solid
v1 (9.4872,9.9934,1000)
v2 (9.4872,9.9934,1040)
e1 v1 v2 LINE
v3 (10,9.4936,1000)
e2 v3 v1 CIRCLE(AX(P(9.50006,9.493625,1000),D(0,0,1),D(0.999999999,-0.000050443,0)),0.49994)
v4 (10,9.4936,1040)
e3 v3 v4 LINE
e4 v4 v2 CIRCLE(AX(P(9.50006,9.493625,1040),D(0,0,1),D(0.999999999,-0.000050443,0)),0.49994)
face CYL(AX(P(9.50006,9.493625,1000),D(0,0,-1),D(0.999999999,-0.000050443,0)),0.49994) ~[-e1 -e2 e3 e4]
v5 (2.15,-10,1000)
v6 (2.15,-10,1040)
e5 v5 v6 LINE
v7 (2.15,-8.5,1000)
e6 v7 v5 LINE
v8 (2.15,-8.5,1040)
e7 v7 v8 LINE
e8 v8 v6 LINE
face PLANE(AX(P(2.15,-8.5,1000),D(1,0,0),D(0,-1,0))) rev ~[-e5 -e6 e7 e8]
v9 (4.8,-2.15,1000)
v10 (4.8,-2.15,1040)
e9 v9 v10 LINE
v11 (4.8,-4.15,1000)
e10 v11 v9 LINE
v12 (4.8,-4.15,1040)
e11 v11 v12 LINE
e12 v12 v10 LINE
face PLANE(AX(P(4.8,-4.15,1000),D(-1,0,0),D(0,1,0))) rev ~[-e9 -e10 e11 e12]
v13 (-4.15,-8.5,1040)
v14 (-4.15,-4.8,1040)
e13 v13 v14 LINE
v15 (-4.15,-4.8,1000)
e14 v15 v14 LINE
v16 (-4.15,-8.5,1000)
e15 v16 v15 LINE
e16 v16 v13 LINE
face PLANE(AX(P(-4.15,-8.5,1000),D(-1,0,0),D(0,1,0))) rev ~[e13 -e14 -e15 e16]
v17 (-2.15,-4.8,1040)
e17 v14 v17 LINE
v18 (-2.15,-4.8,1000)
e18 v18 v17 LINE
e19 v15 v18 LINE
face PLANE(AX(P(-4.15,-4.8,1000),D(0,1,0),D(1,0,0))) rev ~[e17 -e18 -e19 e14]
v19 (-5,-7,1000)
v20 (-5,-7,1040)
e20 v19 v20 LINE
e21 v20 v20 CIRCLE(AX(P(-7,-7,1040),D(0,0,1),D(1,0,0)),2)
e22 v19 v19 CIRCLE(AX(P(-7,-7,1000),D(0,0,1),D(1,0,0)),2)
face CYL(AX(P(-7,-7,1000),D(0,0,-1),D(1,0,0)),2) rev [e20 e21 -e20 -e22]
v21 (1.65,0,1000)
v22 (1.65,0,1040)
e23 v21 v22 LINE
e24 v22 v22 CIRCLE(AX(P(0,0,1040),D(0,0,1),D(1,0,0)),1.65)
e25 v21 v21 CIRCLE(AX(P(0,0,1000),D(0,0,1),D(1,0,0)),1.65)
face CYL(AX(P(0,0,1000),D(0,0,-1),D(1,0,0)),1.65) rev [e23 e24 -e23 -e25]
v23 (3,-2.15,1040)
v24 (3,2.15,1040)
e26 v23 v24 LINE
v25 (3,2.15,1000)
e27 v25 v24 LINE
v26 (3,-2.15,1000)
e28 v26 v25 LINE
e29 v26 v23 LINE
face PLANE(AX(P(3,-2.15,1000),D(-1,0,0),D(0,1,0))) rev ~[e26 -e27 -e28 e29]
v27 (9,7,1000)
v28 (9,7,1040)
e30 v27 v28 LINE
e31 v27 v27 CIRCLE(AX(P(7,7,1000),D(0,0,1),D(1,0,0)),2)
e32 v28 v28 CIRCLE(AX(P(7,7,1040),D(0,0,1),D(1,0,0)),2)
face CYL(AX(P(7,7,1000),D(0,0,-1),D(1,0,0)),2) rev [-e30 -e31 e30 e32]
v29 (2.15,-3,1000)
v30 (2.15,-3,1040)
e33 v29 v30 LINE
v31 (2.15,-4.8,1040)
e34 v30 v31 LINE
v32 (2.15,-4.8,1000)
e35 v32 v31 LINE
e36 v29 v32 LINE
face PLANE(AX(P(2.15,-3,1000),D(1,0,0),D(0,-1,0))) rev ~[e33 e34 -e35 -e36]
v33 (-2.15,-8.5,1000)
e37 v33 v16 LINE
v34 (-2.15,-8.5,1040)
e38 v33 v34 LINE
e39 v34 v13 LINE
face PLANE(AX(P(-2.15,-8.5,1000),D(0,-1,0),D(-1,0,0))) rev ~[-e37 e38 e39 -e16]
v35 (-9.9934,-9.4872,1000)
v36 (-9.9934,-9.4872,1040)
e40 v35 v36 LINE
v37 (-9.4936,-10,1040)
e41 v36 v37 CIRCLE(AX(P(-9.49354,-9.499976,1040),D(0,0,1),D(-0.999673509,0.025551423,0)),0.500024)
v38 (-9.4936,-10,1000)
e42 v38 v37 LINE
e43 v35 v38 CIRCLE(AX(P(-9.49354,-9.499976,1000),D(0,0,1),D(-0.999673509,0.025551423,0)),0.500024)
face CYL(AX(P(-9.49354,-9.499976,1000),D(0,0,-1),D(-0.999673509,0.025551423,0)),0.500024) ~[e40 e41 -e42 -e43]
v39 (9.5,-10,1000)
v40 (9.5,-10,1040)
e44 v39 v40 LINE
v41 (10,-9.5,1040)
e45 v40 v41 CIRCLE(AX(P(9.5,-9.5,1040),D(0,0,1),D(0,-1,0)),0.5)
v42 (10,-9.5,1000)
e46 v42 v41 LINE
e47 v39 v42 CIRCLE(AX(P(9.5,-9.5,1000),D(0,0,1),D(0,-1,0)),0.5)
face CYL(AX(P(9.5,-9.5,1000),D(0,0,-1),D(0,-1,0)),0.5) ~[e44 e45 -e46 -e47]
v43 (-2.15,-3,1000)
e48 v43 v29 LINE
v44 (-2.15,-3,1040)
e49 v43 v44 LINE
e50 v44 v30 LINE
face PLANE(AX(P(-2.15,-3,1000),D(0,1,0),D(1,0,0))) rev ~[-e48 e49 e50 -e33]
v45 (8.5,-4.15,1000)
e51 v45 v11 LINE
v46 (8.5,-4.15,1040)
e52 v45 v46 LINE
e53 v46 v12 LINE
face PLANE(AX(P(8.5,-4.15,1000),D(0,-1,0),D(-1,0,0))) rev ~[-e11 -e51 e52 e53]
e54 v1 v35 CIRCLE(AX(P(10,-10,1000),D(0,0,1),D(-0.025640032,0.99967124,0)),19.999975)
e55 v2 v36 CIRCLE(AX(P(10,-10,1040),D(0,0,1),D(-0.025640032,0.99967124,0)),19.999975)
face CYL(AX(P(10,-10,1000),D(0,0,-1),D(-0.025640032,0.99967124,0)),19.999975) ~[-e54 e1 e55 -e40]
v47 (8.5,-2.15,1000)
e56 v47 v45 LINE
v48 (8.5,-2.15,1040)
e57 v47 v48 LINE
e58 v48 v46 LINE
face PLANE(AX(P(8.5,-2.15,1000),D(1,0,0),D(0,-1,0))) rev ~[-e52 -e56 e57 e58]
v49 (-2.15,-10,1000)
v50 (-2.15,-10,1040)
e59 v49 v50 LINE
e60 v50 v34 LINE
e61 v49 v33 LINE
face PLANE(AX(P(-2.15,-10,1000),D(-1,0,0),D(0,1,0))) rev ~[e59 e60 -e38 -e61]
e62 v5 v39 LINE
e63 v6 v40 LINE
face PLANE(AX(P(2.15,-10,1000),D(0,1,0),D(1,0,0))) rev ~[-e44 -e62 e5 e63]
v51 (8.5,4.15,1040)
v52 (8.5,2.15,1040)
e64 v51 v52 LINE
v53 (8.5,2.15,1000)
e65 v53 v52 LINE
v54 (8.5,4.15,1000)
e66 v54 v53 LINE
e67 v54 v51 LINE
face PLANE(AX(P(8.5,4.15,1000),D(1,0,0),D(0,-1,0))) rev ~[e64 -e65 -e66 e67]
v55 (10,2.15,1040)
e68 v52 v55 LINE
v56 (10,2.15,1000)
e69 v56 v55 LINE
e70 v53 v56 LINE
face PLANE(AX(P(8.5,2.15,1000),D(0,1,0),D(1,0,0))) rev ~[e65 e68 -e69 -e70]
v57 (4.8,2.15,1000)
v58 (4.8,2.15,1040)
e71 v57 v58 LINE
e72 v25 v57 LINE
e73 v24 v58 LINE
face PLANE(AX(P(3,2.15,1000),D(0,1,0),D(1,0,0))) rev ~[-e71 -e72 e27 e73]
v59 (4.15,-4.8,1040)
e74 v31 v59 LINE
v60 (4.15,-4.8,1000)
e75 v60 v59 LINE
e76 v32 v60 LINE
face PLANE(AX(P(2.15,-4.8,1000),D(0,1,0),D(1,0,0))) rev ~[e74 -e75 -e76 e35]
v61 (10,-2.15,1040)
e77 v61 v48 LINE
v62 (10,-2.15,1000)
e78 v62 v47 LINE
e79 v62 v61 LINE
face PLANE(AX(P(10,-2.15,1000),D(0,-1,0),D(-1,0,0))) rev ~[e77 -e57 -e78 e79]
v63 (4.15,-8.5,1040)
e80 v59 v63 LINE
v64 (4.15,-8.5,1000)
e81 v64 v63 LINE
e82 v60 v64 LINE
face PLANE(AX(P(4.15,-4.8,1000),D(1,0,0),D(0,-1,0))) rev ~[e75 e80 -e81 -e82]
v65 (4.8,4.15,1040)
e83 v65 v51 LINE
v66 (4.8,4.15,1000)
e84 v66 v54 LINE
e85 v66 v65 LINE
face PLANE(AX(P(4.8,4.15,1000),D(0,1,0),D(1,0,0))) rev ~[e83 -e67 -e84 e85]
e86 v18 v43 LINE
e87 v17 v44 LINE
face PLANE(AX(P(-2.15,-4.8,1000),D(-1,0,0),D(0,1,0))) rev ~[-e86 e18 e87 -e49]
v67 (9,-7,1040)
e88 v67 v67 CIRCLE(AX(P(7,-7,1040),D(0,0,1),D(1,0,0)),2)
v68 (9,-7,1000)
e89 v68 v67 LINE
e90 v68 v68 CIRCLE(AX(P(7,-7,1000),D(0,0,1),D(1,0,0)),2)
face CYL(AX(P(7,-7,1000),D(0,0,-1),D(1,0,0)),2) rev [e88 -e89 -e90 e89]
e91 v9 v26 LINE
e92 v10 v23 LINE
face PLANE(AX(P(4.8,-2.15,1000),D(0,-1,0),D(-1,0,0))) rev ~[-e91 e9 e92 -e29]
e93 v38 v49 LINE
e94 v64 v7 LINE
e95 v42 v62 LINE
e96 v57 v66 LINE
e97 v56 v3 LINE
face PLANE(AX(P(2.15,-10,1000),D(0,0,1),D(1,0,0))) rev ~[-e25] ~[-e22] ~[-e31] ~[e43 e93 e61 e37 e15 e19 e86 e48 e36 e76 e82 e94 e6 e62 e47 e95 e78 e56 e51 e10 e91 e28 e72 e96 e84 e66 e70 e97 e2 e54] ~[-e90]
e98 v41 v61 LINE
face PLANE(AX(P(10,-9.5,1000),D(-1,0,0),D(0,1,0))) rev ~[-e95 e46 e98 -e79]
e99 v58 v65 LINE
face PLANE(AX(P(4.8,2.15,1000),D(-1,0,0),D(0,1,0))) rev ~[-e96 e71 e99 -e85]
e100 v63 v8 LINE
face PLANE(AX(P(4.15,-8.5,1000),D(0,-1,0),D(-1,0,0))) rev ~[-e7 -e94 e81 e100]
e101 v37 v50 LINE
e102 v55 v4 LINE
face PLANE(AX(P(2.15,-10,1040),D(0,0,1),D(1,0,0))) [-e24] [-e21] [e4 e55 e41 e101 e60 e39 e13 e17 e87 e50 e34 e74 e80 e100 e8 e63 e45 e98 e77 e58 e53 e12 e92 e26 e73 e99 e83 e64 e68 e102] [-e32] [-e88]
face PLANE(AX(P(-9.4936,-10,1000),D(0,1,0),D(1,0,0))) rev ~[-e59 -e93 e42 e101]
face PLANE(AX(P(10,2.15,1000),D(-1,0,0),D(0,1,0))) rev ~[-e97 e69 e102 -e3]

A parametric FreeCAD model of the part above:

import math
import FreeCAD as App
import Part
import Sketcher

V = App.Vector

doc = App.newDocument("Part")
body = doc.addObject("PartDesign::Body", "Body")

# Sketch on XY plane
sketch1 = body.newObject("Sketcher::SketchObject", "Sketch")
sketch1.AttachmentSupport = (doc.getObject("XY_Plane"), [""])
sketch1.MapMode = "FlatFace"
sketch1.AttachmentOffset = App.Placement(V(0, 0, 1000), App.Rotation())
sketch1.addGeometry([
    Part.LineSegment(V(8.5, 4.15, 0), V(8.5, 2.15, 0)),  # 0
    Part.LineSegment(V(8.5, 2.15, 0), V(10, 2.15, 0)),  # 1
    Part.LineSegment(V(10, 2.15, 0), V(10, 9.4936, 0)),  # 2
    Part.ArcOfCircle(Part.Circle(V(9.5, 9.4936, 0), V(0, 0, 1), 0.5), math.radians(0), math.radians(91.467038)),  # 3
    Part.ArcOfCircle(Part.Circle(V(10, -10, 0), V(0, 0, 1), 19.999975), math.radians(91.469227), math.radians(178.530773)),  # 4
    Part.ArcOfCircle(Part.Circle(V(-9.4936, -9.5, 0), V(0, 0, 1), 0.499964), math.radians(178.532962), math.radians(270)),  # 5
    Part.LineSegment(V(-9.4936, -10, 0), V(-2.15, -10, 0)),  # 6
    Part.LineSegment(V(-2.15, -10, 0), V(-2.15, -8.5, 0)),  # 7
    Part.LineSegment(V(-2.15, -8.5, 0), V(-4.15, -8.5, 0)),  # 8
    Part.LineSegment(V(-4.15, -8.5, 0), V(-4.15, -4.8, 0)),  # 9
    Part.LineSegment(V(-4.15, -4.8, 0), V(-2.15, -4.8, 0)),  # 10
    Part.LineSegment(V(-2.15, -4.8, 0), V(-2.15, -3, 0)),  # 11
    Part.LineSegment(V(-2.15, -3, 0), V(2.15, -3, 0)),  # 12
    Part.LineSegment(V(2.15, -3, 0), V(2.15, -4.8, 0)),  # 13
    Part.LineSegment(V(2.15, -4.8, 0), V(4.15, -4.8, 0)),  # 14
    Part.LineSegment(V(4.15, -4.8, 0), V(4.15, -8.5, 0)),  # 15
    Part.LineSegment(V(4.15, -8.5, 0), V(2.15, -8.5, 0)),  # 16
    Part.LineSegment(V(2.15, -8.5, 0), V(2.15, -10, 0)),  # 17
    Part.LineSegment(V(2.15, -10, 0), V(9.5, -10, 0)),  # 18
    Part.ArcOfCircle(Part.Circle(V(9.5, -9.5, 0), V(0, 0, 1), 0.5), math.radians(-90), math.radians(0)),  # 19
    Part.LineSegment(V(10, -9.5, 0), V(10, -2.15, 0)),  # 20
    Part.LineSegment(V(10, -2.15, 0), V(8.5, -2.15, 0)),  # 21
    Part.LineSegment(V(8.5, -2.15, 0), V(8.5, -4.15, 0)),  # 22
    Part.LineSegment(V(8.5, -4.15, 0), V(4.8, -4.15, 0)),  # 23
    Part.LineSegment(V(4.8, -4.15, 0), V(4.8, -2.15, 0)),  # 24
    Part.LineSegment(V(4.8, -2.15, 0), V(3, -2.15, 0)),  # 25
    Part.LineSegment(V(3, -2.15, 0), V(3, 2.15, 0)),  # 26
    Part.LineSegment(V(3, 2.15, 0), V(4.8, 2.15, 0)),  # 27
    Part.LineSegment(V(4.8, 2.15, 0), V(4.8, 4.15, 0)),  # 28
    Part.LineSegment(V(4.8, 4.15, 0), V(8.5, 4.15, 0)),  # 29
    Part.Circle(V(-7, -7, 0), V(0, 0, 1), 2),  # 30
    Part.Circle(V(7, -7, 0), V(0, 0, 1), 2),  # 31
    Part.Circle(V(0, 0, 0), V(0, 0, 1), 1.65),  # 32
    Part.Circle(V(7, 7, 0), V(0, 0, 1), 2),  # 33
], False)
sketch1.addConstraint([
    Sketcher.Constraint("Coincident", 0, 2, 1, 1),
    Sketcher.Constraint("Coincident", 1, 2, 2, 1),
    Sketcher.Constraint("Tangent", 2, 2, 3, 1),
    Sketcher.Constraint("Tangent", 3, 2, 4, 1),
    Sketcher.Constraint("Tangent", 4, 2, 5, 1),
    Sketcher.Constraint("Tangent", 5, 2, 6, 1),
    Sketcher.Constraint("Coincident", 6, 2, 7, 1),
    Sketcher.Constraint("Coincident", 7, 2, 8, 1),
    Sketcher.Constraint("Coincident", 8, 2, 9, 1),
    Sketcher.Constraint("Coincident", 9, 2, 10, 1),
    Sketcher.Constraint("Coincident", 10, 2, 11, 1),
    Sketcher.Constraint("Coincident", 11, 2, 12, 1),
    Sketcher.Constraint("Coincident", 12, 2, 13, 1),
    Sketcher.Constraint("Coincident", 13, 2, 14, 1),
    Sketcher.Constraint("Coincident", 14, 2, 15, 1),
    Sketcher.Constraint("Coincident", 15, 2, 16, 1),
    Sketcher.Constraint("Coincident", 16, 2, 17, 1),
    Sketcher.Constraint("Coincident", 17, 2, 18, 1),
    Sketcher.Constraint("Tangent", 18, 2, 19, 1),
    Sketcher.Constraint("Tangent", 19, 2, 20, 1),
    Sketcher.Constraint("Coincident", 20, 2, 21, 1),
    Sketcher.Constraint("Coincident", 21, 2, 22, 1),
    Sketcher.Constraint("Coincident", 22, 2, 23, 1),
    Sketcher.Constraint("Coincident", 23, 2, 24, 1),
    Sketcher.Constraint("Coincident", 24, 2, 25, 1),
    Sketcher.Constraint("Coincident", 25, 2, 26, 1),
    Sketcher.Constraint("Coincident", 26, 2, 27, 1),
    Sketcher.Constraint("Coincident", 27, 2, 28, 1),
    Sketcher.Constraint("Coincident", 28, 2, 29, 1),
    Sketcher.Constraint("Coincident", 29, 2, 0, 1),
    Sketcher.Constraint("Vertical", 0),
    Sketcher.Constraint("Horizontal", 1),
    Sketcher.Constraint("Vertical", 2),
    Sketcher.Constraint("Horizontal", 6),
    Sketcher.Constraint("Vertical", 7),
    Sketcher.Constraint("Horizontal", 8),
    Sketcher.Constraint("Vertical", 9),
    Sketcher.Constraint("Horizontal", 10),
    Sketcher.Constraint("Vertical", 11),
    Sketcher.Constraint("Horizontal", 12),
    Sketcher.Constraint("Vertical", 13),
    Sketcher.Constraint("Horizontal", 14),
    Sketcher.Constraint("Vertical", 15),
    Sketcher.Constraint("Horizontal", 16),
    Sketcher.Constraint("Vertical", 17),
    Sketcher.Constraint("Horizontal", 18),
    Sketcher.Constraint("Vertical", 20),
    Sketcher.Constraint("Horizontal", 21),
    Sketcher.Constraint("Vertical", 22),
    Sketcher.Constraint("Horizontal", 23),
    Sketcher.Constraint("Vertical", 24),
    Sketcher.Constraint("Horizontal", 25),
    Sketcher.Constraint("Vertical", 26),
    Sketcher.Constraint("Horizontal", 27),
    Sketcher.Constraint("Vertical", 28),
    Sketcher.Constraint("Horizontal", 29),
    Sketcher.Constraint("Coincident", 32, 3, -1, 1),
    Sketcher.Constraint("Equal", 3, 5),
    Sketcher.Constraint("Equal", 5, 19),
    Sketcher.Constraint("Equal", 30, 31),
    Sketcher.Constraint("Equal", 31, 33),
    Sketcher.Constraint("Symmetric", 30, 3, 33, 3, -1, 1),
    Sketcher.Constraint("Symmetric", 30, 3, 31, 3, -2),
    Sketcher.Constraint("Symmetric", 10, 2, 13, 2, -2),
    Sketcher.Constraint("Symmetric", 8, 2, 15, 2, -2),
    Sketcher.Constraint("Symmetric", 6, 2, 17, 2, -2),
    Sketcher.Constraint("Symmetric", 1, 2, 20, 2, -1),
    Sketcher.Constraint("Symmetric", 24, 2, 27, 2, -1),
    Sketcher.Constraint("Symmetric", 22, 2, 29, 2, -1),
    Sketcher.Constraint("Horizontal", 4, 3, 5, 2),
    Sketcher.Constraint("Horizontal", 21, 2, 24, 2),
    Sketcher.Constraint("Vertical", 4, 3, 1, 2),
    Sketcher.Constraint("Vertical", 7, 2, 10, 2),
    Sketcher.Constraint("Equal", 16, 0),
    Sketcher.Constraint("Equal", 6, 2),
    Sketcher.Constraint("Equal", 21, 7),
    Sketcher.Constraint("Equal", 29, 9),
    Sketcher.Constraint("Equal", 27, 11),
    Sketcher.Constraint("Equal", 18, 20),
    Sketcher.Constraint("Diameter", 30, 4.0),
    Sketcher.Constraint("Radius", 4, 20.0),
    Sketcher.Constraint("Diameter", 32, 3.3),
    Sketcher.Constraint("Radius", 3, 0.5),
    Sketcher.Constraint("DistanceX", 8, 2, 8, 1, 2.0),
    Sketcher.Constraint("DistanceX", 1, 1, 1, 2, 1.5),
    Sketcher.Constraint("DistanceX", 12, 1, 12, 2, 4.3),
    Sketcher.Constraint("DistanceX", 23, 2, 23, 1, 3.7),
    Sketcher.Constraint("DistanceX", 25, 2, 25, 1, 1.8),
    Sketcher.Constraint("DistanceX", -1, 1, 4, 3, 10.0),
    Sketcher.Constraint("DistanceX", 30, 3, -1, 1, 7.0),
    Sketcher.Constraint("DistanceY", 30, 3, -1, 1, 7.0),
])
pad1 = body.newObject("PartDesign::Pad", "Pad")
pad1.Profile = sketch1
pad1.Length = 40

doc.recompute()
